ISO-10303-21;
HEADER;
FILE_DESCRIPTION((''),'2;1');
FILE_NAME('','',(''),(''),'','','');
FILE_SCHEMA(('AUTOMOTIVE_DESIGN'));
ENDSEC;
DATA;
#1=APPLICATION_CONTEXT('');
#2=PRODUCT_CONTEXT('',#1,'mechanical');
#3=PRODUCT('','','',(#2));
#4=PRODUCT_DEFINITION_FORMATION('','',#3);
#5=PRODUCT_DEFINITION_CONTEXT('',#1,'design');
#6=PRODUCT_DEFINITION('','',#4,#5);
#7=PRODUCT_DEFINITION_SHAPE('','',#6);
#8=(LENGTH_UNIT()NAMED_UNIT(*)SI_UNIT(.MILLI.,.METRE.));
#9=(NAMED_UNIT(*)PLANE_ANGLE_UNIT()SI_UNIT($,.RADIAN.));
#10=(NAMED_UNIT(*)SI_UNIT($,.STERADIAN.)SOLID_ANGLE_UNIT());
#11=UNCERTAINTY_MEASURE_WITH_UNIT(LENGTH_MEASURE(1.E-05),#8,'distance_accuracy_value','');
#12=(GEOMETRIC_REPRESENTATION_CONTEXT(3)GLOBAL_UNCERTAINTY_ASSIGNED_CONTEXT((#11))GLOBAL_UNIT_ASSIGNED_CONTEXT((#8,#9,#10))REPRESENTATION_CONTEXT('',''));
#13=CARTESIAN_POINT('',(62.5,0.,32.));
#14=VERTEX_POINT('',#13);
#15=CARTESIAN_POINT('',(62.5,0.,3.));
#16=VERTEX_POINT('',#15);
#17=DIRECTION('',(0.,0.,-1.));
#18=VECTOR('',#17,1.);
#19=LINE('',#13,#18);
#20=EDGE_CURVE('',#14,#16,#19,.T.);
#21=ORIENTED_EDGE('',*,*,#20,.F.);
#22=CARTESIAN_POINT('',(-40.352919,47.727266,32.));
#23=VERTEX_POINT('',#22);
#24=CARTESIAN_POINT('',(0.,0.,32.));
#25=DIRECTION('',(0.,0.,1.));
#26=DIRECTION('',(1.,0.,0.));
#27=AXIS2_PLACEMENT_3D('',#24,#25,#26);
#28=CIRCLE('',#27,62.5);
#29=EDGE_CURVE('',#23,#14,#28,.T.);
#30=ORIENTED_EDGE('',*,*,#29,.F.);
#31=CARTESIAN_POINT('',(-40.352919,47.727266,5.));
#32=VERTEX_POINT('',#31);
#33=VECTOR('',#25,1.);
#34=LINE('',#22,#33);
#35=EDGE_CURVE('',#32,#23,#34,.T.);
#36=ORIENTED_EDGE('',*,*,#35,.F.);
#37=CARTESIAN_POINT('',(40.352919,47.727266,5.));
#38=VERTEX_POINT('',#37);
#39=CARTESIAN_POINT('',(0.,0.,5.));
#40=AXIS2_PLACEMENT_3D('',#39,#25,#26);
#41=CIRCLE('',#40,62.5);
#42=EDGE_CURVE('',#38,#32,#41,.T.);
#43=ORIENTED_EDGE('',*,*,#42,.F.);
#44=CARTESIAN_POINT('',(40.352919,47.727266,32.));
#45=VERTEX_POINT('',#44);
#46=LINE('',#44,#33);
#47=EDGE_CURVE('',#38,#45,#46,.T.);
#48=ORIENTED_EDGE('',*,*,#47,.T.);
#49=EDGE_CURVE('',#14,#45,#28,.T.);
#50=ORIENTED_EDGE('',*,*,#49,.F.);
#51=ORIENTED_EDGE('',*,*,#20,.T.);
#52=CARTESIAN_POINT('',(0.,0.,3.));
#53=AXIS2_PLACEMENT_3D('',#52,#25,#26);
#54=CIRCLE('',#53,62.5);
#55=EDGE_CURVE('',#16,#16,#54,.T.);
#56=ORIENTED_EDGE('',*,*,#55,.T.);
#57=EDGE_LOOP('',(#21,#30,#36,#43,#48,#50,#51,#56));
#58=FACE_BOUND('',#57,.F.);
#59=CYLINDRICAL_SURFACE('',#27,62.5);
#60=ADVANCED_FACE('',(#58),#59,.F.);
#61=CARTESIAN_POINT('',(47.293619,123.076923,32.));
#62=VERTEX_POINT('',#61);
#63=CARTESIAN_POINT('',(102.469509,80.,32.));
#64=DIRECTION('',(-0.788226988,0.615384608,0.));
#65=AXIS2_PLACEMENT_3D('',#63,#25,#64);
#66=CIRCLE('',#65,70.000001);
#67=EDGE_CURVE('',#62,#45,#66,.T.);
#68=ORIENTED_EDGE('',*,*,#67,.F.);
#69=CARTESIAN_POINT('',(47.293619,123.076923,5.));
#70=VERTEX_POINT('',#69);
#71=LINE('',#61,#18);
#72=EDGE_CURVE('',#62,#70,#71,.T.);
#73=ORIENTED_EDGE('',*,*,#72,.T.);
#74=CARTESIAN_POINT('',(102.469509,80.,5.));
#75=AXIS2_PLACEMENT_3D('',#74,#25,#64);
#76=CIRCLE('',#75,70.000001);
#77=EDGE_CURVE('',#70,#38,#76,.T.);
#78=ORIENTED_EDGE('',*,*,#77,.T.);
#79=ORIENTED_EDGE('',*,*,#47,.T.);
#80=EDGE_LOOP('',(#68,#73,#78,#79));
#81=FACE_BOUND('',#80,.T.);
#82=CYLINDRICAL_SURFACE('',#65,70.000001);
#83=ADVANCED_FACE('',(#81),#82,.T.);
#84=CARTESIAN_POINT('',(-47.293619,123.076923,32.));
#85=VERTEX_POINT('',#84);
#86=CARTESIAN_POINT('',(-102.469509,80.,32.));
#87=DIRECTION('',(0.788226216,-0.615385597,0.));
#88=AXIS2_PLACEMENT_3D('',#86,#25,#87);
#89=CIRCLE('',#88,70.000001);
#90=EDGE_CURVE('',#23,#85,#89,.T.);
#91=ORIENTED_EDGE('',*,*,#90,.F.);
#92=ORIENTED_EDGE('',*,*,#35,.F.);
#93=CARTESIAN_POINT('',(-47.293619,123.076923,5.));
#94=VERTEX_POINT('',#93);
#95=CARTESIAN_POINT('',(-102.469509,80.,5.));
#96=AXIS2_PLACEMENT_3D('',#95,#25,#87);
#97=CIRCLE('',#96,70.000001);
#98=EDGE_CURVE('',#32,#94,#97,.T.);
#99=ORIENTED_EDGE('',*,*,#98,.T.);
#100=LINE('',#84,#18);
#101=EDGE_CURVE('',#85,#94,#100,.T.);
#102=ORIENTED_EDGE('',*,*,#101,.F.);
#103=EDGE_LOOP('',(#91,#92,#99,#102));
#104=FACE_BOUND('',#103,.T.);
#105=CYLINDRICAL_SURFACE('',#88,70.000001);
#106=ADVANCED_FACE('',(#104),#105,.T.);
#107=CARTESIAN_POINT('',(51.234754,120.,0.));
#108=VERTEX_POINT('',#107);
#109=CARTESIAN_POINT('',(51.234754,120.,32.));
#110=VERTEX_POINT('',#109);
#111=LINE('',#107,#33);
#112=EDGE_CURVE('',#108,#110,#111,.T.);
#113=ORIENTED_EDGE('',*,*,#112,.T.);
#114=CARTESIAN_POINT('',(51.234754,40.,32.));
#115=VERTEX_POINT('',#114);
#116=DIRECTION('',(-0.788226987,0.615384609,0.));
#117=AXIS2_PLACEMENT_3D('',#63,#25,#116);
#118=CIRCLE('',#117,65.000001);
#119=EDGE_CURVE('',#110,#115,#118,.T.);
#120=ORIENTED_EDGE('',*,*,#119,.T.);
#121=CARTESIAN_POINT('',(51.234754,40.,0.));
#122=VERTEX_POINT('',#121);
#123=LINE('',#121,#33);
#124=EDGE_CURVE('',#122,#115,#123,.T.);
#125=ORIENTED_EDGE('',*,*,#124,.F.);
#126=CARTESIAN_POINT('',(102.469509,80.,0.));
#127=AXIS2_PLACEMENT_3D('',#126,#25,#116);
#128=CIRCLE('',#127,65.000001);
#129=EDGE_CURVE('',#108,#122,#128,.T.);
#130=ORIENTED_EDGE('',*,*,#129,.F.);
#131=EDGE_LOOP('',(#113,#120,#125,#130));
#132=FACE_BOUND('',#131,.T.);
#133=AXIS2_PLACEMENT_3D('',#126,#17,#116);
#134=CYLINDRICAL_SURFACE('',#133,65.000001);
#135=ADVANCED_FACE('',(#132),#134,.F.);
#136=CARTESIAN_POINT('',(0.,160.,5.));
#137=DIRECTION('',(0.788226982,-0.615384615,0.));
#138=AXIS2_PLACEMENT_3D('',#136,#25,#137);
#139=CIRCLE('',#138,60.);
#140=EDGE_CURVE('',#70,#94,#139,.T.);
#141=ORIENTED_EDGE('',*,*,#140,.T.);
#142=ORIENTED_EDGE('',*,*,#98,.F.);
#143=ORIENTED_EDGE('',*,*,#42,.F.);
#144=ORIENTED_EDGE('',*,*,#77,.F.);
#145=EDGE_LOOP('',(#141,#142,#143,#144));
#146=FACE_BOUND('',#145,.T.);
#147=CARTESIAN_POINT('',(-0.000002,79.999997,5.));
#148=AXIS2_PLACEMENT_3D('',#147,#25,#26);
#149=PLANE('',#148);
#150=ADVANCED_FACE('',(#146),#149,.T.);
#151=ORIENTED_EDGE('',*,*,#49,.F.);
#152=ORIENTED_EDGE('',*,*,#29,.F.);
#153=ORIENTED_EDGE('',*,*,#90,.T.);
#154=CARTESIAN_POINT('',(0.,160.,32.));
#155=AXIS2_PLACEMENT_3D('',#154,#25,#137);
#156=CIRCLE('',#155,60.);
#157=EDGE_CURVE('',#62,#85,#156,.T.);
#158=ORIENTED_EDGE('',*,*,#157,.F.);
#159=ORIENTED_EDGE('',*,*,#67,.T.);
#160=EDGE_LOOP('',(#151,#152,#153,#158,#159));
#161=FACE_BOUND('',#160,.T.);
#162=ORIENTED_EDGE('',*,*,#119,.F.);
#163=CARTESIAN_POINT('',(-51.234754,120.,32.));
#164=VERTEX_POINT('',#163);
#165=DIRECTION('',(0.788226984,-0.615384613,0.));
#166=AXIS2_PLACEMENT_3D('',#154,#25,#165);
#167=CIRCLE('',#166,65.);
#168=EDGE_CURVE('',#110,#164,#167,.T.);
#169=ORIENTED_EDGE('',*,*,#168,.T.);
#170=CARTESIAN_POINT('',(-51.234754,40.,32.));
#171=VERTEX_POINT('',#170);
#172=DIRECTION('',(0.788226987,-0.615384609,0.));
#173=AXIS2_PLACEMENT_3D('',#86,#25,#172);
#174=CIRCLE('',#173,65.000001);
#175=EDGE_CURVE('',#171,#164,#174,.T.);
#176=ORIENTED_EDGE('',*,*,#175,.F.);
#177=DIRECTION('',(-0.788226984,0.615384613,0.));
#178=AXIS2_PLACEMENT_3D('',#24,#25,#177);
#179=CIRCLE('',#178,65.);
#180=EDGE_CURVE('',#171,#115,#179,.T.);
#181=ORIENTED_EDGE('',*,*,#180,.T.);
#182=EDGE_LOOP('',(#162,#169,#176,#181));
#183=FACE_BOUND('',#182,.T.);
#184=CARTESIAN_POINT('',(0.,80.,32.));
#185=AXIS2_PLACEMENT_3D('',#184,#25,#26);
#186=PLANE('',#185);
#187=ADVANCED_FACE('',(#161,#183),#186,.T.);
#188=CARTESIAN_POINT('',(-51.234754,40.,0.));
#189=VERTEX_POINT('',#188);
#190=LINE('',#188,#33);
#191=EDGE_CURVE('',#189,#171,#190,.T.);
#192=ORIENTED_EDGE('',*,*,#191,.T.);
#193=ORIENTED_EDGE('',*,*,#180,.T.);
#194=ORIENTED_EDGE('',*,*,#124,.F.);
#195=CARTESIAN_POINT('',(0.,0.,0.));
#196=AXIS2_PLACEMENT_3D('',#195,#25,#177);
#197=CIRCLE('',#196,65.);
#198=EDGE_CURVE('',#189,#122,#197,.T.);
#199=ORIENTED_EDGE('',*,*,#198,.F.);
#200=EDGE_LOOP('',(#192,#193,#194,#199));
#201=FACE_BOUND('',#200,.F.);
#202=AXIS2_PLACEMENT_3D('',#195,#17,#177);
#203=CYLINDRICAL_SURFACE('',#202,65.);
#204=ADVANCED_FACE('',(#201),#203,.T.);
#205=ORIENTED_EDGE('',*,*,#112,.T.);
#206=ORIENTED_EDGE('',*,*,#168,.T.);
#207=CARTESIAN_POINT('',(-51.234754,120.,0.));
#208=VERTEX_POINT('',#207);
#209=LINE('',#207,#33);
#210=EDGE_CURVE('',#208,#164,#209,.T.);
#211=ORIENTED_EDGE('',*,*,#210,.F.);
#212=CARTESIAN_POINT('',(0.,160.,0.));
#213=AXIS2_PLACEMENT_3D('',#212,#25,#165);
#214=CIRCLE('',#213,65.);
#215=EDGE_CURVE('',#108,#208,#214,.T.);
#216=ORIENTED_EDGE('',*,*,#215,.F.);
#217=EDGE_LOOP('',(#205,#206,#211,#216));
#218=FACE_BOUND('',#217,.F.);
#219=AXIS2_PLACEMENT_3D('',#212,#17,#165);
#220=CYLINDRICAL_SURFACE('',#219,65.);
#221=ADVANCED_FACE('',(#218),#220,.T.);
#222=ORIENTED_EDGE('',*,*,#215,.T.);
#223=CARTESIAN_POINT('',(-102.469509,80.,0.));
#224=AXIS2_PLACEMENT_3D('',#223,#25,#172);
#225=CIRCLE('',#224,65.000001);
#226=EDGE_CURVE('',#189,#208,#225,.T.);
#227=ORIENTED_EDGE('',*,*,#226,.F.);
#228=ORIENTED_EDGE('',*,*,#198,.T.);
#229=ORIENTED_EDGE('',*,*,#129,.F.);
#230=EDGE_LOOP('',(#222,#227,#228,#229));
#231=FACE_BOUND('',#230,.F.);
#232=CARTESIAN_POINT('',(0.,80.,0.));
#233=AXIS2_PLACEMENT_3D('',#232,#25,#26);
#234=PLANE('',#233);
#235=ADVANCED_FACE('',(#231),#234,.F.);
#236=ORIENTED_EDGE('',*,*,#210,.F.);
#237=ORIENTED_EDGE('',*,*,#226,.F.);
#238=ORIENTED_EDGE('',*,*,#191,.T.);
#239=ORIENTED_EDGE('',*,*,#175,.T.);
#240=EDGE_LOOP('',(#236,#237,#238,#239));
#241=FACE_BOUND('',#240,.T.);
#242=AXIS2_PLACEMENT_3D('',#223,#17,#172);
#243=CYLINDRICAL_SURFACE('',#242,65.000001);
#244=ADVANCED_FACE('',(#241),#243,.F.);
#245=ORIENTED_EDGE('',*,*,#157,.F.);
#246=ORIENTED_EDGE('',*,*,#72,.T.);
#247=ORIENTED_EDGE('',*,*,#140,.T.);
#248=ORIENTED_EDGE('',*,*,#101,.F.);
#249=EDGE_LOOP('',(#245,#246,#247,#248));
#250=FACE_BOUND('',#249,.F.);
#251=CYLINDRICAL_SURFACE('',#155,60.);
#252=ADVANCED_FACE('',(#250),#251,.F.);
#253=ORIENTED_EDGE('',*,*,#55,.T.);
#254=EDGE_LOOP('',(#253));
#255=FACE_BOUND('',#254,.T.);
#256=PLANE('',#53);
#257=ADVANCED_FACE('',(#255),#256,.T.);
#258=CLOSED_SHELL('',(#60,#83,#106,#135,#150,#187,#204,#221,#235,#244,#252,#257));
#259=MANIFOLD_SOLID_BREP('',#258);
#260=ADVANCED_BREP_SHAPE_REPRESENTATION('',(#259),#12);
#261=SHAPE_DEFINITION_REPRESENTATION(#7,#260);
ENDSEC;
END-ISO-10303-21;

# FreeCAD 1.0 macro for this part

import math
import FreeCAD as App
import Part
import Sketcher
from FreeCAD import Vector
Q = App.Units.Quantity

doc = App.newDocument("Part")
params = doc.addObject("Spreadsheet::Sheet", "Params")
for row, (alias, value) in enumerate([
    ("sketch1_radius", "65 mm"),
    ("pad1_length", "32 mm"),
    ("sketch2_radius", "60 mm"),
    ("sketch2_radius2", "70.000001 mm"),
    ("pocket1_length", "27 mm"),
    ("sketch3_diameter", "125 mm"),
    ("pocket2_length", "29 mm"),
], start=1):
    params.set(f"A{row}", alias)
    params.set(f"B{row}", "=" + value)
    params.setAlias(f"B{row}", alias)

body = doc.addObject("PartDesign::Body", "Body")

# Sketch on XY plane
sketch1 = body.newObject("Sketcher::SketchObject", "Sketch")
sketch1.AttachmentSupport = (doc.getObject("XY_Plane"), [""])
sketch1.MapMode = "FlatFace"
sketch1.addGeometry([
    Part.ArcOfCircle(Part.Circle(Vector(0, 0, 0), Vector(0, 0, 1), 65), math.radians(142), math.radians(398)),
    Part.ArcOfCircle(Part.Circle(Vector(102, 80, 0), Vector(0, 0, 1), 65), math.radians(142), math.radians(218)),
    Part.ArcOfCircle(Part.Circle(Vector(0, 160, 0), Vector(0, 0, 1), 65), math.radians(-38), math.radians(218)),
    Part.ArcOfCircle(Part.Circle(Vector(-102, 80, 0), Vector(0, 0, 1), 65), math.radians(-38), math.radians(38)),
], False)
sketch1.addConstraint([
    Sketcher.Constraint("Tangent", 0, 2, 1, 2),
    Sketcher.Constraint("Tangent", 1, 1, 2, 1),
    Sketcher.Constraint("Tangent", 2, 2, 3, 2),
    Sketcher.Constraint("Tangent", 3, 1, 0, 1),
    Sketcher.Constraint("Coincident", 0, 3, -1, 1),
    Sketcher.Constraint("Equal", 0, 1),
    Sketcher.Constraint("Equal", 1, 2),
    Sketcher.Constraint("Equal", 2, 3),
    Sketcher.Constraint("PointOnObject", 2, 3, -2),
    Sketcher.Constraint("Radius", 0, Q("65 mm")),
    Sketcher.Constraint("DistanceY", -1, 1, 1, 3, Q("80 mm")),
])
sketch1.setExpression("Constraints[9]", "Params.sketch1_radius")
pad1 = body.newObject("PartDesign::Pad", "Pad")
pad1.Profile = sketch1
pad1.setExpression("Length", "Params.pad1_length")

# Sketch on XY plane
sketch2 = body.newObject("Sketcher::SketchObject", "Sketch001")
sketch2.AttachmentSupport = (doc.getObject("XY_Plane"), [""])
sketch2.MapMode = "FlatFace"
sketch2.AttachmentOffset = App.Placement(Vector(0, 0, 32), App.Rotation())
sketch2.addGeometry([
    Part.ArcOfCircle(Part.Circle(Vector(0, 0, 0), Vector(0, 0, 1), 60), math.radians(142), math.radians(398)),
    Part.ArcOfCircle(Part.Circle(Vector(102, 80, 0), Vector(0, 0, 1), 70), math.radians(142), math.radians(218)),
    Part.ArcOfCircle(Part.Circle(Vector(0, 160, 0), Vector(0, 0, 1), 60), math.radians(-38), math.radians(218)),
    Part.ArcOfCircle(Part.Circle(Vector(-102, 80, 0), Vector(0, 0, 1), 70), math.radians(-38), math.radians(38)),
], False)
sketch2.addConstraint([
    Sketcher.Constraint("Tangent", 0, 2, 1, 2),
    Sketcher.Constraint("Tangent", 1, 1, 2, 1),
    Sketcher.Constraint("Tangent", 2, 2, 3, 2),
    Sketcher.Constraint("Coincident", 3, 1, 0, 1),
    Sketcher.Constraint("Coincident", 0, 3, -1, 1),
    Sketcher.Constraint("Equal", 0, 2),
    Sketcher.Constraint("Equal", 1, 3),
    Sketcher.Constraint("PointOnObject", 2, 3, -2),
    Sketcher.Constraint("Radius", 0, Q("60 mm")),
    Sketcher.Constraint("Radius", 1, Q("70.000001 mm")),
    Sketcher.Constraint("DistanceY", -1, 1, 1, 3, Q("80 mm")),
    Sketcher.Constraint("DistanceX", 3, 1, 0, 2, Q("94.587292 mm")),
])
sketch2.setExpression("Constraints[8]", "Params.sketch2_radius")
sketch2.setExpression("Constraints[9]", "Params.sketch2_radius2")
pocket1 = body.newObject("PartDesign::Pocket", "Pocket")
pocket1.Profile = sketch2
pocket1.setExpression("Length", "Params.pocket1_length")

# Sketch on XY plane
sketch3 = body.newObject("Sketcher::SketchObject", "Sketch002")
sketch3.AttachmentSupport = (doc.getObject("XY_Plane"), [""])
sketch3.MapMode = "FlatFace"
sketch3.AttachmentOffset = App.Placement(Vector(0, 0, 32), App.Rotation())
sketch3.addGeometry(Part.Circle(Vector(0, 0, 0), Vector(0, 0, 1), 62), False)
sketch3.addConstraint([
    Sketcher.Constraint("Coincident", 0, 3, -1, 1),
    Sketcher.Constraint("Diameter", 0, Q("125 mm")),
])
sketch3.setExpression("Constraints[1]", "Params.sketch3_diameter")
pocket2 = body.newObject("PartDesign::Pocket", "Pocket001")
pocket2.Profile = sketch3
pocket2.setExpression("Length", "Params.pocket2_length")

doc.recompute()
